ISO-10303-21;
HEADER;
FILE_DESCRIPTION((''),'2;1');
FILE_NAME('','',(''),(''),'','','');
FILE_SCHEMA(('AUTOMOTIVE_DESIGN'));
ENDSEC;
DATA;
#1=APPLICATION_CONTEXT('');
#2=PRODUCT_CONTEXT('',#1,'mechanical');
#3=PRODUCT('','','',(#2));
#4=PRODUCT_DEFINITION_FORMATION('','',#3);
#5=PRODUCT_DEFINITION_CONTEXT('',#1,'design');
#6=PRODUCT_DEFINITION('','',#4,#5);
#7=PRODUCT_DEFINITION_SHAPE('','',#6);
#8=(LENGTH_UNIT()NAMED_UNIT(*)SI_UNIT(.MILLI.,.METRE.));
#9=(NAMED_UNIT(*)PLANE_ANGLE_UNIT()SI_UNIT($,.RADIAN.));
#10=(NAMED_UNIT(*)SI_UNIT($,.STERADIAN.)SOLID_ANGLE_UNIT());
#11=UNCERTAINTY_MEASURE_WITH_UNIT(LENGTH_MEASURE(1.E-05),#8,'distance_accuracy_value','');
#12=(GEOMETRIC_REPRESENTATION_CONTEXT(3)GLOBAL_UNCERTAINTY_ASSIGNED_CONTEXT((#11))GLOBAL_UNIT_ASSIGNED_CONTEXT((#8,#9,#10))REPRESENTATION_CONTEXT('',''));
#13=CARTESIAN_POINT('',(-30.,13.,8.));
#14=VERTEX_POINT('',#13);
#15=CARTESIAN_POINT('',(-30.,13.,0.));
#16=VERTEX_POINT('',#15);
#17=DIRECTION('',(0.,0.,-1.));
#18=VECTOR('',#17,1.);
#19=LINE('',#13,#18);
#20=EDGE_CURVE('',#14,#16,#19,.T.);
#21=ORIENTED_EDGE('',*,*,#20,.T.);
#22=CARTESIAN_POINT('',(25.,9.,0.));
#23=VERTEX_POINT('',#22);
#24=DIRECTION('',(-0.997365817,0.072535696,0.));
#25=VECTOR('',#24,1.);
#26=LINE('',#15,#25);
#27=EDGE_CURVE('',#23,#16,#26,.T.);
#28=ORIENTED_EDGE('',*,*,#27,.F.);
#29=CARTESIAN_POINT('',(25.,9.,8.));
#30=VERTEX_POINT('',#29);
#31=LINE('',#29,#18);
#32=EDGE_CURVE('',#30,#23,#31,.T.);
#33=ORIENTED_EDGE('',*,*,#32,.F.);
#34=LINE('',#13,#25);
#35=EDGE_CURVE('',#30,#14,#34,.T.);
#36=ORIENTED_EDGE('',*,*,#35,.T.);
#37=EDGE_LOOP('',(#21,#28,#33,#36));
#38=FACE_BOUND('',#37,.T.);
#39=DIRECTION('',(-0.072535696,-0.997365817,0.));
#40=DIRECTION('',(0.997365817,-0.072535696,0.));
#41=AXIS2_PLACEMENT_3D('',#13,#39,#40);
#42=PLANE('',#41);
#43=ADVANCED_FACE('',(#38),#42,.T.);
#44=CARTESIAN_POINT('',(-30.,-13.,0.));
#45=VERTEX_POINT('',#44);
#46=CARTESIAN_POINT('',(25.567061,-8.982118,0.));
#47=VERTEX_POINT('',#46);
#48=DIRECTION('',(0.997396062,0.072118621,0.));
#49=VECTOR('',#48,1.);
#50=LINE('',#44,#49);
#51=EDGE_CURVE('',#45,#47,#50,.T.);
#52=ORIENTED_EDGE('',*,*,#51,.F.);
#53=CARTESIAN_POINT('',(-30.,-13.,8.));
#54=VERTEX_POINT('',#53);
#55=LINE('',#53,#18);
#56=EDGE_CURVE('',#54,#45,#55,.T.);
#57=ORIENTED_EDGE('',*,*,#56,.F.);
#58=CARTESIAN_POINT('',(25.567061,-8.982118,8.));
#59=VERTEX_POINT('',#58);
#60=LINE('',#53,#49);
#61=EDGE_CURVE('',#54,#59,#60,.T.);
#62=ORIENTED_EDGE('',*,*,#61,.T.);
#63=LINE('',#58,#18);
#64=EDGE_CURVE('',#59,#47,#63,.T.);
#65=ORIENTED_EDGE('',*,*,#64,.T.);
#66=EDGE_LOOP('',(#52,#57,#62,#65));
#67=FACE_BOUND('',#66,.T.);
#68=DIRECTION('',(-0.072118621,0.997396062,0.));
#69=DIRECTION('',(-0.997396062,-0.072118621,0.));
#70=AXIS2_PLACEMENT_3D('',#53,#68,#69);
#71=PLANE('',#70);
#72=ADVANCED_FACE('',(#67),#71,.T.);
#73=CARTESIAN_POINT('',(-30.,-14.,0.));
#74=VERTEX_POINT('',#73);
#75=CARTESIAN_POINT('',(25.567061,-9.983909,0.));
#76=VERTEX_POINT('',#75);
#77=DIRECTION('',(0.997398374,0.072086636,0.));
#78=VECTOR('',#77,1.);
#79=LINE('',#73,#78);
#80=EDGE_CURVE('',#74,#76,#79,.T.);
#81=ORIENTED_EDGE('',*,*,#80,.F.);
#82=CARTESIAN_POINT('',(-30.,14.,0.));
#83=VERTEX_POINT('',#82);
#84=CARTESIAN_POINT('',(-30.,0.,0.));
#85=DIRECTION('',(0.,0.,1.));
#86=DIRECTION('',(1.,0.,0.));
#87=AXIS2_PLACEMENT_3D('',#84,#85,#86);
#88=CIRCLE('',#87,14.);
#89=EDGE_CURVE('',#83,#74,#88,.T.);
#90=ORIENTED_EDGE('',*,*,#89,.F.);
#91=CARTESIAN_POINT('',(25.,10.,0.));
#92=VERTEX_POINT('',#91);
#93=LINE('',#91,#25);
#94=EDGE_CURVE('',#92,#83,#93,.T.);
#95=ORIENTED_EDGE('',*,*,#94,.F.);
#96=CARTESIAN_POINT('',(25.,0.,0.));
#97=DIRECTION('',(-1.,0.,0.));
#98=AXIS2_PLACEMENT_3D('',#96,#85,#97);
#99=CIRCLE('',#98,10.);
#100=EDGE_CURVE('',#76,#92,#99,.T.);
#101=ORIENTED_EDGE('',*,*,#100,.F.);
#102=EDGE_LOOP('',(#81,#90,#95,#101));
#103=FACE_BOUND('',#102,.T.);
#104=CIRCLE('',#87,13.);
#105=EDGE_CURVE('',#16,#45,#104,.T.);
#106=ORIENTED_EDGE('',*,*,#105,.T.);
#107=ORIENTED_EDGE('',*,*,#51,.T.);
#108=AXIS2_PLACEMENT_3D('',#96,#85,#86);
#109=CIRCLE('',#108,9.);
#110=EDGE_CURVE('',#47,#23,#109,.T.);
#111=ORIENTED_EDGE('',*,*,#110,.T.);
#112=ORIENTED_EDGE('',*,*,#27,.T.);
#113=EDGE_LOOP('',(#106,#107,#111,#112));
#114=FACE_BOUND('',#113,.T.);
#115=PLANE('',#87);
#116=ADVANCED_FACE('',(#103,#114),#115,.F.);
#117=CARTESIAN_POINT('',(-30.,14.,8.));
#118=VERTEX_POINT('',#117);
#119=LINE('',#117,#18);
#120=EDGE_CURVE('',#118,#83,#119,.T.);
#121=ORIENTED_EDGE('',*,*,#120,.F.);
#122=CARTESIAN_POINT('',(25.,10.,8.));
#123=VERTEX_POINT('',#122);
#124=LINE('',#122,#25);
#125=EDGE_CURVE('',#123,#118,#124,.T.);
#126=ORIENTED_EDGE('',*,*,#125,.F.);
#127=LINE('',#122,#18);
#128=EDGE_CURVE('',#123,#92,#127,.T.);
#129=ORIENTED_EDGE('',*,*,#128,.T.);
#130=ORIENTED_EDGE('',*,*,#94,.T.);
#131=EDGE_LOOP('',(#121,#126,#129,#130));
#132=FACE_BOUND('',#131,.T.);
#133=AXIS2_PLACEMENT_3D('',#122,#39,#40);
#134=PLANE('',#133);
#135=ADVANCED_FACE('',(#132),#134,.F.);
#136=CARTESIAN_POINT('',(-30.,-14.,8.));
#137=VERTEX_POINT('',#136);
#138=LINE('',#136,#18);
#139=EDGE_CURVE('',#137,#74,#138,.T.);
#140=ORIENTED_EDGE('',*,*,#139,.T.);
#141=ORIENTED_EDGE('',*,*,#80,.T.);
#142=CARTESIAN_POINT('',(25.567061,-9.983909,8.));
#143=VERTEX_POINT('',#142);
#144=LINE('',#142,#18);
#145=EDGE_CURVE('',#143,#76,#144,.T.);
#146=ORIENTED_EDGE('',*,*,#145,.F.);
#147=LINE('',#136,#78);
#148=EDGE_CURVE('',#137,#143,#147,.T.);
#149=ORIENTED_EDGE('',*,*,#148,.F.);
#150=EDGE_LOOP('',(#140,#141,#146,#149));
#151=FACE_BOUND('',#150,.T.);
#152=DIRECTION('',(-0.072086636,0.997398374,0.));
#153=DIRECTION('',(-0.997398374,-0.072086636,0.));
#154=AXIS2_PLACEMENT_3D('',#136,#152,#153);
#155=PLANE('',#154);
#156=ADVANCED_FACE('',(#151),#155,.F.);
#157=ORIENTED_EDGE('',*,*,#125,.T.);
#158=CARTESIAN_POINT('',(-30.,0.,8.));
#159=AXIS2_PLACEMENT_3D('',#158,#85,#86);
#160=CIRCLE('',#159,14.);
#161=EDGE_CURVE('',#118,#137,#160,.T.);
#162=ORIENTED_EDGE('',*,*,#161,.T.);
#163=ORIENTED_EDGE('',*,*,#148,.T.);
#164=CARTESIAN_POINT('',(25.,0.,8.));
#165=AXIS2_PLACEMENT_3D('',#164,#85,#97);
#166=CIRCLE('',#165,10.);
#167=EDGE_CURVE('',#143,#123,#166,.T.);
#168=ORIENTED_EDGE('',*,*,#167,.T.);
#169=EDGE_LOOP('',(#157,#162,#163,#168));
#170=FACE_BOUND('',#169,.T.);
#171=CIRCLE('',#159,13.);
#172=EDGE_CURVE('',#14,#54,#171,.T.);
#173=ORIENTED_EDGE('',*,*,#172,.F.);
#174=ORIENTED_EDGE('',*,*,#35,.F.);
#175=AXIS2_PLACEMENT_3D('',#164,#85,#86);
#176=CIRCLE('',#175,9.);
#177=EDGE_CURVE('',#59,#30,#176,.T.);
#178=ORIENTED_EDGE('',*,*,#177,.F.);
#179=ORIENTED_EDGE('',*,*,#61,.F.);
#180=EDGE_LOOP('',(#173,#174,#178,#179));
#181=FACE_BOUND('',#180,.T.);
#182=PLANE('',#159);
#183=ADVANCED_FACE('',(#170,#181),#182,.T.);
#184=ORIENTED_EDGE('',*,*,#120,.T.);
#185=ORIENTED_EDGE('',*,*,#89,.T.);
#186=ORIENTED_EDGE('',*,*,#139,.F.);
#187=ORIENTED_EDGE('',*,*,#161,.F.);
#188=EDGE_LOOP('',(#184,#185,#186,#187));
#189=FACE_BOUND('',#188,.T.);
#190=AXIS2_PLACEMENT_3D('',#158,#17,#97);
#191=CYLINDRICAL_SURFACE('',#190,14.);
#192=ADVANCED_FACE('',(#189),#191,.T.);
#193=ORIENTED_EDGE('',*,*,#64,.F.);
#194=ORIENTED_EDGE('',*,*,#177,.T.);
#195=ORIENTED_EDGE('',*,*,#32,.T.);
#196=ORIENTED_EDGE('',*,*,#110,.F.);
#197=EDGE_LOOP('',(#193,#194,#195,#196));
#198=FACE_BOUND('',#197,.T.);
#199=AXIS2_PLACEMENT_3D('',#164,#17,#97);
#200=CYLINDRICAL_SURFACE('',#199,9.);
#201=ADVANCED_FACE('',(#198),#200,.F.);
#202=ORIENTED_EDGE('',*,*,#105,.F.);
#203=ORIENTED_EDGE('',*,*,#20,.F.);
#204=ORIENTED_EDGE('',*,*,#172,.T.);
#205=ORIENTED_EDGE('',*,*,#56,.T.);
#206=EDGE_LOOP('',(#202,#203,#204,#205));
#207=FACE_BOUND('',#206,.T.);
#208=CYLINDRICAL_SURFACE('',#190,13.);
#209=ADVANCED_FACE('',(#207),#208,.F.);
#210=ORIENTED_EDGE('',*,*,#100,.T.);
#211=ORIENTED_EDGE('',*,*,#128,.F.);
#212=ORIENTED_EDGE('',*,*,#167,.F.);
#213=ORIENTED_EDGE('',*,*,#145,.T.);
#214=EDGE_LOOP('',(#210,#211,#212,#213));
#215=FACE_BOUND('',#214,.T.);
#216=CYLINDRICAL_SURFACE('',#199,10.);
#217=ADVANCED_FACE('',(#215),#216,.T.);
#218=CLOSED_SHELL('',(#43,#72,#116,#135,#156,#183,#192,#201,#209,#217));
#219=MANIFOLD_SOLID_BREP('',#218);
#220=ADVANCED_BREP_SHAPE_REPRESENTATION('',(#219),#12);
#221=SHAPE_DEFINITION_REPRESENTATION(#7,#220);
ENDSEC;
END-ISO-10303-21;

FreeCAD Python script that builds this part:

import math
import FreeCAD as App
import Part
import Sketcher

V = App.Vector
Q = App.Units.Quantity

doc = App.newDocument("Part")
body = doc.addObject("PartDesign::Body", "Body")

# Sketch on XY plane
sketch1 = body.newObject("Sketcher::SketchObject", "Sketch")
sketch1.AttachmentSupport = (doc.getObject("XY_Plane"), [""])
sketch1.MapMode = "FlatFace"
sketch1.addGeometry([
    Part.LineSegment(V(-30, -14, 0), V(26, -10, 0)),  # 0
    Part.ArcOfCircle(Part.Circle(V(25, 0, 0), V(0, 0, 1), 10), math.radians(-87), math.radians(90)),  # 1
    Part.LineSegment(V(25, 10, 0), V(-30, 14, 0)),  # 2
    Part.ArcOfCircle(Part.Circle(V(-30, 0, 0), V(0, 0, 1), 14), math.radians(90), math.radians(270)),  # 3
    Part.ArcOfCircle(Part.Circle(V(-30, 0, 0), V(0, 0, 1), 13), math.radians(90), math.radians(270)),  # 4
    Part.LineSegment(V(-30, 13, 0), V(25, 9, 0)),  # 5
    Part.ArcOfCircle(Part.Circle(V(25, 0, 0), V(0, 0, 1), 9), math.radians(-86), math.radians(90)),  # 6
    Part.LineSegment(V(26, -9, 0), V(-30, -13, 0)),  # 7
], False)
sketch1.addConstraint([
    Sketcher.Constraint("Coincident", 0, 2, 1, 1),
    Sketcher.Constraint("Coincident", 1, 2, 2, 1),
    Sketcher.Constraint("Coincident", 2, 2, 3, 1),
    Sketcher.Constraint("Coincident", 3, 2, 0, 1),
    Sketcher.Constraint("Coincident", 4, 1, 5, 1),
    Sketcher.Constraint("Coincident", 5, 2, 6, 2),
    Sketcher.Constraint("Coincident", 6, 1, 7, 1),
    Sketcher.Constraint("Coincident", 7, 2, 4, 2),
    Sketcher.Constraint("Coincident", 4, 3, 3, 3),
    Sketcher.Constraint("Coincident", 6, 3, 1, 3),
    Sketcher.Constraint("Symmetric", 2, 2, 3, 2, -1),
    Sketcher.Constraint("PointOnObject", 1, 3, -1),
    Sketcher.Constraint("Parallel", 2, 5),
    Sketcher.Constraint("Vertical", 6, 3, 1, 2),
    Sketcher.Constraint("Vertical", 4, 3, 2, 2),
    Sketcher.Constraint("Vertical", 3, 2, 4, 1),
    Sketcher.Constraint("Vertical", 1, 2, 5, 2),
    Sketcher.Constraint("Vertical", 0, 2, 6, 1),
    Sketcher.Constraint("Vertical", 4, 1, 7, 2),
    Sketcher.Constraint("Radius", 1, Q("10 mm")),
    Sketcher.Constraint("Radius", 3, Q("14 mm")),
    Sketcher.Constraint("Radius", 4, Q("13 mm")),
    Sketcher.Constraint("DistanceX", -1, 1, 1, 3, Q("25 mm")),
    Sketcher.Constraint("DistanceX", 3, 3, -1, 1, Q("30 mm")),
    Sketcher.Constraint("Distance", 7, Q("55.712131 mm")),
])
pad1 = body.newObject("PartDesign::Pad", "Pad")
pad1.Profile = sketch1
pad1.Length = 8

doc.recompute()
